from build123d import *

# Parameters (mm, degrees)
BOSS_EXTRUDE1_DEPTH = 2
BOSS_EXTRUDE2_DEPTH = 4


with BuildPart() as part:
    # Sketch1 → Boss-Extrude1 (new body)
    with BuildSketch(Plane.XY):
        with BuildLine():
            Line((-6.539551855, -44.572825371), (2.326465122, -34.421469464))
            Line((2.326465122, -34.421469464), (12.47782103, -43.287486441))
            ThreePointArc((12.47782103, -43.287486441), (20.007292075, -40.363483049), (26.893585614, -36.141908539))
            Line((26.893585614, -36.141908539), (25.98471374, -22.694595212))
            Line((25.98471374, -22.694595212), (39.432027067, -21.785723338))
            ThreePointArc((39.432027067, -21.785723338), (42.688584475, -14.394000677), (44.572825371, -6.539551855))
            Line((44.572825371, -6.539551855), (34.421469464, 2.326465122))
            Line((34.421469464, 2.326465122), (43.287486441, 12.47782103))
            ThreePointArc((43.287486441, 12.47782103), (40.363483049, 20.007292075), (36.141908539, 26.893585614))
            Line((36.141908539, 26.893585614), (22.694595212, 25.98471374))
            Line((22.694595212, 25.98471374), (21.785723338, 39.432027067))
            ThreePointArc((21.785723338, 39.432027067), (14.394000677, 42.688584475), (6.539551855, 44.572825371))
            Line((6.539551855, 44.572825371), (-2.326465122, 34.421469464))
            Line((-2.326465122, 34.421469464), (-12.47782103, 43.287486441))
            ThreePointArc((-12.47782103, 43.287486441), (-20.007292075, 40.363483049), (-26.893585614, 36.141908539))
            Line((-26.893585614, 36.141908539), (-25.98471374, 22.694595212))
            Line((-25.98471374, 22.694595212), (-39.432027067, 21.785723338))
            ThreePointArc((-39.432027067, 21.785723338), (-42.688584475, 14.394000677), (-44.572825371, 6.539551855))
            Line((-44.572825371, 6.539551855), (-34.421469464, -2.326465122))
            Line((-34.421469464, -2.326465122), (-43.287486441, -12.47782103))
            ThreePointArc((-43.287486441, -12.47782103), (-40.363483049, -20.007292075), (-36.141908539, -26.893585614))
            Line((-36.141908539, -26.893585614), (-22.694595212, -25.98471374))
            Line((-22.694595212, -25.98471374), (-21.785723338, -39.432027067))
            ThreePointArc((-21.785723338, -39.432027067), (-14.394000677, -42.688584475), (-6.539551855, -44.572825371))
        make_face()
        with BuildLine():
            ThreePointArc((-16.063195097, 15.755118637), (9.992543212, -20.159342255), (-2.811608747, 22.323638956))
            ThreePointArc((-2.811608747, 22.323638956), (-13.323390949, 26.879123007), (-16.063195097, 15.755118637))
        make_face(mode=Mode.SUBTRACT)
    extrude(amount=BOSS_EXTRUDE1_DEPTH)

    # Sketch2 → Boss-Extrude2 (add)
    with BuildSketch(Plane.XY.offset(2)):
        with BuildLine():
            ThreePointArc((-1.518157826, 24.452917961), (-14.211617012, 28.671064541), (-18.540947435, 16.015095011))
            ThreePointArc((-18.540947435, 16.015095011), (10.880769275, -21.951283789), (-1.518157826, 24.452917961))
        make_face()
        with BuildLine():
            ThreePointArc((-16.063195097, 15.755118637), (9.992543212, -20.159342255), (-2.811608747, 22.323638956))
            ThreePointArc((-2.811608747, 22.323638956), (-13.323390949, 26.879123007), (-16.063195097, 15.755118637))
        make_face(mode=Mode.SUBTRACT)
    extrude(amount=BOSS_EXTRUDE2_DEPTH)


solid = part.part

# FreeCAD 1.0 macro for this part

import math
import FreeCAD as App
import Part
import Sketcher

V = App.Vector

doc = App.newDocument("Part")
body = doc.addObject("PartDesign::Body", "Body")

# Sketch on XY plane
sketch1 = body.newObject("Sketcher::SketchObject", "Sketch")
sketch1.AttachmentSupport = (doc.getObject("XY_Plane"), [""])
sketch1.MapMode = "FlatFace"
sketch1.addGeometry(Part.LineSegment(V(-7, -45, 0), V(2, -34, 0)), False)
sketch1.addGeometry(Part.LineSegment(V(2, -34, 0), V(12, -43, 0)), False)
sketch1.addGeometry(Part.ArcOfCircle(Part.Circle(V(0, 0, 0), V(0, 0, 1), 45), math.radians(-74), math.radians(-53)), False)
sketch1.addGeometry(Part.LineSegment(V(27, -36, 0), V(26, -23, 0)), False)
sketch1.addGeometry(Part.LineSegment(V(26, -23, 0), V(39, -22, 0)), False)
sketch1.addGeometry(Part.ArcOfCircle(Part.Circle(V(0, 0, 0), V(0, 0, 1), 45), math.radians(-29), math.radians(-8)), False)
sketch1.addGeometry(Part.LineSegment(V(45, -7, 0), V(34, 2, 0)), False)
sketch1.addGeometry(Part.LineSegment(V(34, 2, 0), V(43, 12, 0)), False)
sketch1.addGeometry(Part.ArcOfCircle(Part.Circle(V(0, 0, 0), V(0, 0, 1), 45), math.radians(16), math.radians(37)), False)
sketch1.addGeometry(Part.LineSegment(V(36, 27, 0), V(23, 26, 0)), False)
sketch1.addGeometry(Part.LineSegment(V(23, 26, 0), V(22, 39, 0)), False)
sketch1.addGeometry(Part.ArcOfCircle(Part.Circle(V(0, 0, 0), V(0, 0, 1), 45), math.radians(61), math.radians(82)), False)
sketch1.addGeometry(Part.LineSegment(V(7, 45, 0), V(-2, 34, 0)), False)
sketch1.addGeometry(Part.LineSegment(V(-2, 34, 0), V(-12, 43, 0)), False)
sketch1.addGeometry(Part.ArcOfCircle(Part.Circle(V(0, 0, 0), V(0, 0, 1), 45), math.radians(106), math.radians(127)), False)
sketch1.addGeometry(Part.LineSegment(V(-27, 36, 0), V(-26, 23, 0)), False)
sketch1.addGeometry(Part.LineSegment(V(-26, 23, 0), V(-39, 22, 0)), False)
sketch1.addGeometry(Part.ArcOfCircle(Part.Circle(V(0, 0, 0), V(0, 0, 1), 45), math.radians(151), math.radians(172)), False)
sketch1.addGeometry(Part.LineSegment(V(-45, 7, 0), V(-34, -2, 0)), False)
sketch1.addGeometry(Part.LineSegment(V(-34, -2, 0), V(-43, -12, 0)), False)
sketch1.addGeometry(Part.ArcOfCircle(Part.Circle(V(0, 0, 0), V(0, 0, 1), 45), math.radians(-164), math.radians(-143)), False)
sketch1.addGeometry(Part.LineSegment(V(-36, -27, 0), V(-23, -26, 0)), False)
sketch1.addGeometry(Part.LineSegment(V(-23, -26, 0), V(-22, -39, 0)), False)
sketch1.addGeometry(Part.ArcOfCircle(Part.Circle(V(0, 0, 0), V(0, 0, 1), 45), math.radians(-119), math.radians(-98)), False)
sketch1.addGeometry(Part.ArcOfCircle(Part.Circle(V(0, 0, 0), V(0, 0, 1), 22), math.radians(136), math.radians(457)), False)
sketch1.addGeometry(Part.ArcOfCircle(Part.Circle(V(-10, 20, 0), V(0, 0, 1), 8), math.radians(17), math.radians(216)), False)
sketch1.addConstraint(Sketcher.Constraint("Coincident", 0, 2, 1, 1))
sketch1.addConstraint(Sketcher.Constraint("Coincident", 1, 2, 2, 1))
sketch1.addConstraint(Sketcher.Constraint("Coincident", 2, 2, 3, 1))
sketch1.addConstraint(Sketcher.Constraint("Coincident", 3, 2, 4, 1))
sketch1.addConstraint(Sketcher.Constraint("Coincident", 4, 2, 5, 1))
sketch1.addConstraint(Sketcher.Constraint("Coincident", 5, 2, 6, 1))
sketch1.addConstraint(Sketcher.Constraint("Coincident", 6, 2, 7, 1))
sketch1.addConstraint(Sketcher.Constraint("Coincident", 7, 2, 8, 1))
sketch1.addConstraint(Sketcher.Constraint("Coincident", 8, 2, 9, 1))
sketch1.addConstraint(Sketcher.Constraint("Coincident", 9, 2, 10, 1))
sketch1.addConstraint(Sketcher.Constraint("Coincident", 10, 2, 11, 1))
sketch1.addConstraint(Sketcher.Constraint("Coincident", 11, 2, 12, 1))
sketch1.addConstraint(Sketcher.Constraint("Coincident", 12, 2, 13, 1))
sketch1.addConstraint(Sketcher.Constraint("Coincident", 13, 2, 14, 1))
sketch1.addConstraint(Sketcher.Constraint("Coincident", 14, 2, 15, 1))
sketch1.addConstraint(Sketcher.Constraint("Coincident", 15, 2, 16, 1))
sketch1.addConstraint(Sketcher.Constraint("Coincident", 16, 2, 17, 1))
sketch1.addConstraint(Sketcher.Constraint("Coincident", 17, 2, 18, 1))
sketch1.addConstraint(Sketcher.Constraint("Coincident", 18, 2, 19, 1))
sketch1.addConstraint(Sketcher.Constraint("Coincident", 19, 2, 20, 1))
sketch1.addConstraint(Sketcher.Constraint("Coincident", 20, 2, 21, 1))
sketch1.addConstraint(Sketcher.Constraint("Coincident", 21, 2, 22, 1))
sketch1.addConstraint(Sketcher.Constraint("Coincident", 22, 2, 23, 1))
sketch1.addConstraint(Sketcher.Constraint("Coincident", 23, 2, 0, 1))
sketch1.addConstraint(Sketcher.Constraint("Coincident", 24, 1, 25, 2))
sketch1.addConstraint(Sketcher.Constraint("Coincident", 25, 1, 24, 2))
sketch1.addConstraint(Sketcher.Constraint("Coincident", 2, 3, -1, 1))
sketch1.addConstraint(Sketcher.Constraint("Coincident", 5, 3, -1, 1))
sketch1.addConstraint(Sketcher.Constraint("Coincident", 8, 3, -1, 1))
sketch1.addConstraint(Sketcher.Constraint("Coincident", 11, 3, -1, 1))
sketch1.addConstraint(Sketcher.Constraint("Coincident", 14, 3, -1, 1))
sketch1.addConstraint(Sketcher.Constraint("Coincident", 17, 3, -1, 1))
sketch1.addConstraint(Sketcher.Constraint("Coincident", 20, 3, -1, 1))
sketch1.addConstraint(Sketcher.Constraint("Coincident", 23, 3, -1, 1))
sketch1.addConstraint(Sketcher.Constraint("Coincident", 24, 3, -1, 1))
sketch1.addConstraint(Sketcher.Constraint("Equal", 2, 5))
sketch1.addConstraint(Sketcher.Constraint("Equal", 5, 8))
sketch1.addConstraint(Sketcher.Constraint("Equal", 8, 11))
sketch1.addConstraint(Sketcher.Constraint("Equal", 11, 14))
sketch1.addConstraint(Sketcher.Constraint("Equal", 14, 17))
sketch1.addConstraint(Sketcher.Constraint("Equal", 17, 20))
sketch1.addConstraint(Sketcher.Constraint("Equal", 20, 23))
sketch1.addConstraint(Sketcher.Constraint("Symmetric", 0, 2, 12, 2, -1, 1))
sketch1.addConstraint(Sketcher.Constraint("Symmetric", 3, 2, 15, 2, -1, 1))
sketch1.addConstraint(Sketcher.Constraint("Symmetric", 6, 2, 18, 2, -1, 1))
sketch1.addConstraint(Sketcher.Constraint("Symmetric", 9, 2, 21, 2, -1, 1))
sketch1.addConstraint(Sketcher.Constraint("Perpendicular", 0, 1))
sketch1.addConstraint(Sketcher.Constraint("Perpendicular", 3, 4))
sketch1.addConstraint(Sketcher.Constraint("Parallel", 1, 6))
sketch1.addConstraint(Sketcher.Constraint("Perpendicular", 6, 7))
sketch1.addConstraint(Sketcher.Constraint("Parallel", 4, 9))
sketch1.addConstraint(Sketcher.Constraint("Perpendicular", 9, 10))
sketch1.addConstraint(Sketcher.Constraint("Parallel", 7, 12))
sketch1.addConstraint(Sketcher.Constraint("Perpendicular", 12, 13))
sketch1.addConstraint(Sketcher.Constraint("Parallel", 10, 15))
sketch1.addConstraint(Sketcher.Constraint("Perpendicular", 15, 16))
sketch1.addConstraint(Sketcher.Constraint("Parallel", 13, 18))
sketch1.addConstraint(Sketcher.Constraint("Perpendicular", 18, 19))
sketch1.addConstraint(Sketcher.Constraint("Parallel", 16, 21))
sketch1.addConstraint(Sketcher.Constraint("Perpendicular", 21, 22))
sketch1.addConstraint(Sketcher.Constraint("Equal", 0, 1))
sketch1.addConstraint(Sketcher.Constraint("Equal", 1, 3))
sketch1.addConstraint(Sketcher.Constraint("Equal", 3, 4))
sketch1.addConstraint(Sketcher.Constraint("Equal", 4, 6))
sketch1.addConstraint(Sketcher.Constraint("Equal", 6, 7))
sketch1.addConstraint(Sketcher.Constraint("Equal", 7, 9))
sketch1.addConstraint(Sketcher.Constraint("Equal", 9, 10))
sketch1.addConstraint(Sketcher.Constraint("Radius", 24, 22.5))
sketch1.addConstraint(Sketcher.Constraint("Radius", 25, 7.5))
sketch1.addConstraint(Sketcher.Constraint("Radius", 2, 45.05))
sketch1.addConstraint(Sketcher.Constraint("DistanceX", 4, 2, 5, 2, 5.140798))
sketch1.addConstraint(Sketcher.Constraint("DistanceY", 0, 2, -1, 1, 34.421469))
sketch1.addConstraint(Sketcher.Constraint("DistanceX", -1, 1, 1, 2, 12.477821))
sketch1.addConstraint(Sketcher.Constraint("DistanceY", -1, 1, 24, 1, 15.755119))
sketch1.addConstraint(Sketcher.Constraint("DistanceX", 25, 1, -1, 1, 2.811609))
pad1 = body.newObject("PartDesign::Pad", "Pad")
pad1.Profile = sketch1
pad1.Length = 2

# Sketch on XY plane
sketch2 = body.newObject("Sketcher::SketchObject", "Sketch001")
sketch2.AttachmentSupport = (doc.getObject("XY_Plane"), [""])
sketch2.MapMode = "FlatFace"
sketch2.AttachmentOffset = App.Placement(V(0, 0, 2), App.Rotation())
sketch2.addGeometry(Part.ArcOfCircle(Part.Circle(V(-10, 20, 0), V(0, 0, 1), 10), math.radians(27), math.radians(206)), False)
sketch2.addGeometry(Part.ArcOfCircle(Part.Circle(V(0, 0, 0), V(0, 0, 1), 24), math.radians(139), math.radians(454)), False)
sketch2.addGeometry(Part.ArcOfCircle(Part.Circle(V(0, 0, 0), V(0, 0, 1), 22), math.radians(136), math.radians(457)), False)
sketch2.addGeometry(Part.ArcOfCircle(Part.Circle(V(-10, 20, 0), V(0, 0, 1), 8), math.radians(17), math.radians(216)), False)
sketch2.addConstraint(Sketcher.Constraint("Coincident", 0, 1, 1, 2))
sketch2.addConstraint(Sketcher.Constraint("Coincident", 1, 1, 0, 2))
sketch2.addConstraint(Sketcher.Constraint("Coincident", 2, 1, 3, 2))
sketch2.addConstraint(Sketcher.Constraint("Coincident", 3, 1, 2, 2))
sketch2.addConstraint(Sketcher.Constraint("Coincident", 1, 3, -1, 1))
sketch2.addConstraint(Sketcher.Constraint("Coincident", 2, 3, -1, 1))
sketch2.addConstraint(Sketcher.Constraint("Coincident", 3, 3, 0, 3))
sketch2.addConstraint(Sketcher.Constraint("Radius", 0, 9.5))
sketch2.addConstraint(Sketcher.Constraint("Radius", 1, 24.5))
sketch2.addConstraint(Sketcher.Constraint("Radius", 2, 22.5))
sketch2.addConstraint(Sketcher.Constraint("Radius", 3, 7.5))
sketch2.addConstraint(Sketcher.Constraint("DistanceY", 2, 1, 0, 1, 8.697799))
sketch2.addConstraint(Sketcher.Constraint("DistanceX", 3, 1, -1, 1, 2.811609))
pad2 = body.newObject("PartDesign::Pad", "Pad001")
pad2.Profile = sketch2
pad2.Length = 4

doc.recompute()
